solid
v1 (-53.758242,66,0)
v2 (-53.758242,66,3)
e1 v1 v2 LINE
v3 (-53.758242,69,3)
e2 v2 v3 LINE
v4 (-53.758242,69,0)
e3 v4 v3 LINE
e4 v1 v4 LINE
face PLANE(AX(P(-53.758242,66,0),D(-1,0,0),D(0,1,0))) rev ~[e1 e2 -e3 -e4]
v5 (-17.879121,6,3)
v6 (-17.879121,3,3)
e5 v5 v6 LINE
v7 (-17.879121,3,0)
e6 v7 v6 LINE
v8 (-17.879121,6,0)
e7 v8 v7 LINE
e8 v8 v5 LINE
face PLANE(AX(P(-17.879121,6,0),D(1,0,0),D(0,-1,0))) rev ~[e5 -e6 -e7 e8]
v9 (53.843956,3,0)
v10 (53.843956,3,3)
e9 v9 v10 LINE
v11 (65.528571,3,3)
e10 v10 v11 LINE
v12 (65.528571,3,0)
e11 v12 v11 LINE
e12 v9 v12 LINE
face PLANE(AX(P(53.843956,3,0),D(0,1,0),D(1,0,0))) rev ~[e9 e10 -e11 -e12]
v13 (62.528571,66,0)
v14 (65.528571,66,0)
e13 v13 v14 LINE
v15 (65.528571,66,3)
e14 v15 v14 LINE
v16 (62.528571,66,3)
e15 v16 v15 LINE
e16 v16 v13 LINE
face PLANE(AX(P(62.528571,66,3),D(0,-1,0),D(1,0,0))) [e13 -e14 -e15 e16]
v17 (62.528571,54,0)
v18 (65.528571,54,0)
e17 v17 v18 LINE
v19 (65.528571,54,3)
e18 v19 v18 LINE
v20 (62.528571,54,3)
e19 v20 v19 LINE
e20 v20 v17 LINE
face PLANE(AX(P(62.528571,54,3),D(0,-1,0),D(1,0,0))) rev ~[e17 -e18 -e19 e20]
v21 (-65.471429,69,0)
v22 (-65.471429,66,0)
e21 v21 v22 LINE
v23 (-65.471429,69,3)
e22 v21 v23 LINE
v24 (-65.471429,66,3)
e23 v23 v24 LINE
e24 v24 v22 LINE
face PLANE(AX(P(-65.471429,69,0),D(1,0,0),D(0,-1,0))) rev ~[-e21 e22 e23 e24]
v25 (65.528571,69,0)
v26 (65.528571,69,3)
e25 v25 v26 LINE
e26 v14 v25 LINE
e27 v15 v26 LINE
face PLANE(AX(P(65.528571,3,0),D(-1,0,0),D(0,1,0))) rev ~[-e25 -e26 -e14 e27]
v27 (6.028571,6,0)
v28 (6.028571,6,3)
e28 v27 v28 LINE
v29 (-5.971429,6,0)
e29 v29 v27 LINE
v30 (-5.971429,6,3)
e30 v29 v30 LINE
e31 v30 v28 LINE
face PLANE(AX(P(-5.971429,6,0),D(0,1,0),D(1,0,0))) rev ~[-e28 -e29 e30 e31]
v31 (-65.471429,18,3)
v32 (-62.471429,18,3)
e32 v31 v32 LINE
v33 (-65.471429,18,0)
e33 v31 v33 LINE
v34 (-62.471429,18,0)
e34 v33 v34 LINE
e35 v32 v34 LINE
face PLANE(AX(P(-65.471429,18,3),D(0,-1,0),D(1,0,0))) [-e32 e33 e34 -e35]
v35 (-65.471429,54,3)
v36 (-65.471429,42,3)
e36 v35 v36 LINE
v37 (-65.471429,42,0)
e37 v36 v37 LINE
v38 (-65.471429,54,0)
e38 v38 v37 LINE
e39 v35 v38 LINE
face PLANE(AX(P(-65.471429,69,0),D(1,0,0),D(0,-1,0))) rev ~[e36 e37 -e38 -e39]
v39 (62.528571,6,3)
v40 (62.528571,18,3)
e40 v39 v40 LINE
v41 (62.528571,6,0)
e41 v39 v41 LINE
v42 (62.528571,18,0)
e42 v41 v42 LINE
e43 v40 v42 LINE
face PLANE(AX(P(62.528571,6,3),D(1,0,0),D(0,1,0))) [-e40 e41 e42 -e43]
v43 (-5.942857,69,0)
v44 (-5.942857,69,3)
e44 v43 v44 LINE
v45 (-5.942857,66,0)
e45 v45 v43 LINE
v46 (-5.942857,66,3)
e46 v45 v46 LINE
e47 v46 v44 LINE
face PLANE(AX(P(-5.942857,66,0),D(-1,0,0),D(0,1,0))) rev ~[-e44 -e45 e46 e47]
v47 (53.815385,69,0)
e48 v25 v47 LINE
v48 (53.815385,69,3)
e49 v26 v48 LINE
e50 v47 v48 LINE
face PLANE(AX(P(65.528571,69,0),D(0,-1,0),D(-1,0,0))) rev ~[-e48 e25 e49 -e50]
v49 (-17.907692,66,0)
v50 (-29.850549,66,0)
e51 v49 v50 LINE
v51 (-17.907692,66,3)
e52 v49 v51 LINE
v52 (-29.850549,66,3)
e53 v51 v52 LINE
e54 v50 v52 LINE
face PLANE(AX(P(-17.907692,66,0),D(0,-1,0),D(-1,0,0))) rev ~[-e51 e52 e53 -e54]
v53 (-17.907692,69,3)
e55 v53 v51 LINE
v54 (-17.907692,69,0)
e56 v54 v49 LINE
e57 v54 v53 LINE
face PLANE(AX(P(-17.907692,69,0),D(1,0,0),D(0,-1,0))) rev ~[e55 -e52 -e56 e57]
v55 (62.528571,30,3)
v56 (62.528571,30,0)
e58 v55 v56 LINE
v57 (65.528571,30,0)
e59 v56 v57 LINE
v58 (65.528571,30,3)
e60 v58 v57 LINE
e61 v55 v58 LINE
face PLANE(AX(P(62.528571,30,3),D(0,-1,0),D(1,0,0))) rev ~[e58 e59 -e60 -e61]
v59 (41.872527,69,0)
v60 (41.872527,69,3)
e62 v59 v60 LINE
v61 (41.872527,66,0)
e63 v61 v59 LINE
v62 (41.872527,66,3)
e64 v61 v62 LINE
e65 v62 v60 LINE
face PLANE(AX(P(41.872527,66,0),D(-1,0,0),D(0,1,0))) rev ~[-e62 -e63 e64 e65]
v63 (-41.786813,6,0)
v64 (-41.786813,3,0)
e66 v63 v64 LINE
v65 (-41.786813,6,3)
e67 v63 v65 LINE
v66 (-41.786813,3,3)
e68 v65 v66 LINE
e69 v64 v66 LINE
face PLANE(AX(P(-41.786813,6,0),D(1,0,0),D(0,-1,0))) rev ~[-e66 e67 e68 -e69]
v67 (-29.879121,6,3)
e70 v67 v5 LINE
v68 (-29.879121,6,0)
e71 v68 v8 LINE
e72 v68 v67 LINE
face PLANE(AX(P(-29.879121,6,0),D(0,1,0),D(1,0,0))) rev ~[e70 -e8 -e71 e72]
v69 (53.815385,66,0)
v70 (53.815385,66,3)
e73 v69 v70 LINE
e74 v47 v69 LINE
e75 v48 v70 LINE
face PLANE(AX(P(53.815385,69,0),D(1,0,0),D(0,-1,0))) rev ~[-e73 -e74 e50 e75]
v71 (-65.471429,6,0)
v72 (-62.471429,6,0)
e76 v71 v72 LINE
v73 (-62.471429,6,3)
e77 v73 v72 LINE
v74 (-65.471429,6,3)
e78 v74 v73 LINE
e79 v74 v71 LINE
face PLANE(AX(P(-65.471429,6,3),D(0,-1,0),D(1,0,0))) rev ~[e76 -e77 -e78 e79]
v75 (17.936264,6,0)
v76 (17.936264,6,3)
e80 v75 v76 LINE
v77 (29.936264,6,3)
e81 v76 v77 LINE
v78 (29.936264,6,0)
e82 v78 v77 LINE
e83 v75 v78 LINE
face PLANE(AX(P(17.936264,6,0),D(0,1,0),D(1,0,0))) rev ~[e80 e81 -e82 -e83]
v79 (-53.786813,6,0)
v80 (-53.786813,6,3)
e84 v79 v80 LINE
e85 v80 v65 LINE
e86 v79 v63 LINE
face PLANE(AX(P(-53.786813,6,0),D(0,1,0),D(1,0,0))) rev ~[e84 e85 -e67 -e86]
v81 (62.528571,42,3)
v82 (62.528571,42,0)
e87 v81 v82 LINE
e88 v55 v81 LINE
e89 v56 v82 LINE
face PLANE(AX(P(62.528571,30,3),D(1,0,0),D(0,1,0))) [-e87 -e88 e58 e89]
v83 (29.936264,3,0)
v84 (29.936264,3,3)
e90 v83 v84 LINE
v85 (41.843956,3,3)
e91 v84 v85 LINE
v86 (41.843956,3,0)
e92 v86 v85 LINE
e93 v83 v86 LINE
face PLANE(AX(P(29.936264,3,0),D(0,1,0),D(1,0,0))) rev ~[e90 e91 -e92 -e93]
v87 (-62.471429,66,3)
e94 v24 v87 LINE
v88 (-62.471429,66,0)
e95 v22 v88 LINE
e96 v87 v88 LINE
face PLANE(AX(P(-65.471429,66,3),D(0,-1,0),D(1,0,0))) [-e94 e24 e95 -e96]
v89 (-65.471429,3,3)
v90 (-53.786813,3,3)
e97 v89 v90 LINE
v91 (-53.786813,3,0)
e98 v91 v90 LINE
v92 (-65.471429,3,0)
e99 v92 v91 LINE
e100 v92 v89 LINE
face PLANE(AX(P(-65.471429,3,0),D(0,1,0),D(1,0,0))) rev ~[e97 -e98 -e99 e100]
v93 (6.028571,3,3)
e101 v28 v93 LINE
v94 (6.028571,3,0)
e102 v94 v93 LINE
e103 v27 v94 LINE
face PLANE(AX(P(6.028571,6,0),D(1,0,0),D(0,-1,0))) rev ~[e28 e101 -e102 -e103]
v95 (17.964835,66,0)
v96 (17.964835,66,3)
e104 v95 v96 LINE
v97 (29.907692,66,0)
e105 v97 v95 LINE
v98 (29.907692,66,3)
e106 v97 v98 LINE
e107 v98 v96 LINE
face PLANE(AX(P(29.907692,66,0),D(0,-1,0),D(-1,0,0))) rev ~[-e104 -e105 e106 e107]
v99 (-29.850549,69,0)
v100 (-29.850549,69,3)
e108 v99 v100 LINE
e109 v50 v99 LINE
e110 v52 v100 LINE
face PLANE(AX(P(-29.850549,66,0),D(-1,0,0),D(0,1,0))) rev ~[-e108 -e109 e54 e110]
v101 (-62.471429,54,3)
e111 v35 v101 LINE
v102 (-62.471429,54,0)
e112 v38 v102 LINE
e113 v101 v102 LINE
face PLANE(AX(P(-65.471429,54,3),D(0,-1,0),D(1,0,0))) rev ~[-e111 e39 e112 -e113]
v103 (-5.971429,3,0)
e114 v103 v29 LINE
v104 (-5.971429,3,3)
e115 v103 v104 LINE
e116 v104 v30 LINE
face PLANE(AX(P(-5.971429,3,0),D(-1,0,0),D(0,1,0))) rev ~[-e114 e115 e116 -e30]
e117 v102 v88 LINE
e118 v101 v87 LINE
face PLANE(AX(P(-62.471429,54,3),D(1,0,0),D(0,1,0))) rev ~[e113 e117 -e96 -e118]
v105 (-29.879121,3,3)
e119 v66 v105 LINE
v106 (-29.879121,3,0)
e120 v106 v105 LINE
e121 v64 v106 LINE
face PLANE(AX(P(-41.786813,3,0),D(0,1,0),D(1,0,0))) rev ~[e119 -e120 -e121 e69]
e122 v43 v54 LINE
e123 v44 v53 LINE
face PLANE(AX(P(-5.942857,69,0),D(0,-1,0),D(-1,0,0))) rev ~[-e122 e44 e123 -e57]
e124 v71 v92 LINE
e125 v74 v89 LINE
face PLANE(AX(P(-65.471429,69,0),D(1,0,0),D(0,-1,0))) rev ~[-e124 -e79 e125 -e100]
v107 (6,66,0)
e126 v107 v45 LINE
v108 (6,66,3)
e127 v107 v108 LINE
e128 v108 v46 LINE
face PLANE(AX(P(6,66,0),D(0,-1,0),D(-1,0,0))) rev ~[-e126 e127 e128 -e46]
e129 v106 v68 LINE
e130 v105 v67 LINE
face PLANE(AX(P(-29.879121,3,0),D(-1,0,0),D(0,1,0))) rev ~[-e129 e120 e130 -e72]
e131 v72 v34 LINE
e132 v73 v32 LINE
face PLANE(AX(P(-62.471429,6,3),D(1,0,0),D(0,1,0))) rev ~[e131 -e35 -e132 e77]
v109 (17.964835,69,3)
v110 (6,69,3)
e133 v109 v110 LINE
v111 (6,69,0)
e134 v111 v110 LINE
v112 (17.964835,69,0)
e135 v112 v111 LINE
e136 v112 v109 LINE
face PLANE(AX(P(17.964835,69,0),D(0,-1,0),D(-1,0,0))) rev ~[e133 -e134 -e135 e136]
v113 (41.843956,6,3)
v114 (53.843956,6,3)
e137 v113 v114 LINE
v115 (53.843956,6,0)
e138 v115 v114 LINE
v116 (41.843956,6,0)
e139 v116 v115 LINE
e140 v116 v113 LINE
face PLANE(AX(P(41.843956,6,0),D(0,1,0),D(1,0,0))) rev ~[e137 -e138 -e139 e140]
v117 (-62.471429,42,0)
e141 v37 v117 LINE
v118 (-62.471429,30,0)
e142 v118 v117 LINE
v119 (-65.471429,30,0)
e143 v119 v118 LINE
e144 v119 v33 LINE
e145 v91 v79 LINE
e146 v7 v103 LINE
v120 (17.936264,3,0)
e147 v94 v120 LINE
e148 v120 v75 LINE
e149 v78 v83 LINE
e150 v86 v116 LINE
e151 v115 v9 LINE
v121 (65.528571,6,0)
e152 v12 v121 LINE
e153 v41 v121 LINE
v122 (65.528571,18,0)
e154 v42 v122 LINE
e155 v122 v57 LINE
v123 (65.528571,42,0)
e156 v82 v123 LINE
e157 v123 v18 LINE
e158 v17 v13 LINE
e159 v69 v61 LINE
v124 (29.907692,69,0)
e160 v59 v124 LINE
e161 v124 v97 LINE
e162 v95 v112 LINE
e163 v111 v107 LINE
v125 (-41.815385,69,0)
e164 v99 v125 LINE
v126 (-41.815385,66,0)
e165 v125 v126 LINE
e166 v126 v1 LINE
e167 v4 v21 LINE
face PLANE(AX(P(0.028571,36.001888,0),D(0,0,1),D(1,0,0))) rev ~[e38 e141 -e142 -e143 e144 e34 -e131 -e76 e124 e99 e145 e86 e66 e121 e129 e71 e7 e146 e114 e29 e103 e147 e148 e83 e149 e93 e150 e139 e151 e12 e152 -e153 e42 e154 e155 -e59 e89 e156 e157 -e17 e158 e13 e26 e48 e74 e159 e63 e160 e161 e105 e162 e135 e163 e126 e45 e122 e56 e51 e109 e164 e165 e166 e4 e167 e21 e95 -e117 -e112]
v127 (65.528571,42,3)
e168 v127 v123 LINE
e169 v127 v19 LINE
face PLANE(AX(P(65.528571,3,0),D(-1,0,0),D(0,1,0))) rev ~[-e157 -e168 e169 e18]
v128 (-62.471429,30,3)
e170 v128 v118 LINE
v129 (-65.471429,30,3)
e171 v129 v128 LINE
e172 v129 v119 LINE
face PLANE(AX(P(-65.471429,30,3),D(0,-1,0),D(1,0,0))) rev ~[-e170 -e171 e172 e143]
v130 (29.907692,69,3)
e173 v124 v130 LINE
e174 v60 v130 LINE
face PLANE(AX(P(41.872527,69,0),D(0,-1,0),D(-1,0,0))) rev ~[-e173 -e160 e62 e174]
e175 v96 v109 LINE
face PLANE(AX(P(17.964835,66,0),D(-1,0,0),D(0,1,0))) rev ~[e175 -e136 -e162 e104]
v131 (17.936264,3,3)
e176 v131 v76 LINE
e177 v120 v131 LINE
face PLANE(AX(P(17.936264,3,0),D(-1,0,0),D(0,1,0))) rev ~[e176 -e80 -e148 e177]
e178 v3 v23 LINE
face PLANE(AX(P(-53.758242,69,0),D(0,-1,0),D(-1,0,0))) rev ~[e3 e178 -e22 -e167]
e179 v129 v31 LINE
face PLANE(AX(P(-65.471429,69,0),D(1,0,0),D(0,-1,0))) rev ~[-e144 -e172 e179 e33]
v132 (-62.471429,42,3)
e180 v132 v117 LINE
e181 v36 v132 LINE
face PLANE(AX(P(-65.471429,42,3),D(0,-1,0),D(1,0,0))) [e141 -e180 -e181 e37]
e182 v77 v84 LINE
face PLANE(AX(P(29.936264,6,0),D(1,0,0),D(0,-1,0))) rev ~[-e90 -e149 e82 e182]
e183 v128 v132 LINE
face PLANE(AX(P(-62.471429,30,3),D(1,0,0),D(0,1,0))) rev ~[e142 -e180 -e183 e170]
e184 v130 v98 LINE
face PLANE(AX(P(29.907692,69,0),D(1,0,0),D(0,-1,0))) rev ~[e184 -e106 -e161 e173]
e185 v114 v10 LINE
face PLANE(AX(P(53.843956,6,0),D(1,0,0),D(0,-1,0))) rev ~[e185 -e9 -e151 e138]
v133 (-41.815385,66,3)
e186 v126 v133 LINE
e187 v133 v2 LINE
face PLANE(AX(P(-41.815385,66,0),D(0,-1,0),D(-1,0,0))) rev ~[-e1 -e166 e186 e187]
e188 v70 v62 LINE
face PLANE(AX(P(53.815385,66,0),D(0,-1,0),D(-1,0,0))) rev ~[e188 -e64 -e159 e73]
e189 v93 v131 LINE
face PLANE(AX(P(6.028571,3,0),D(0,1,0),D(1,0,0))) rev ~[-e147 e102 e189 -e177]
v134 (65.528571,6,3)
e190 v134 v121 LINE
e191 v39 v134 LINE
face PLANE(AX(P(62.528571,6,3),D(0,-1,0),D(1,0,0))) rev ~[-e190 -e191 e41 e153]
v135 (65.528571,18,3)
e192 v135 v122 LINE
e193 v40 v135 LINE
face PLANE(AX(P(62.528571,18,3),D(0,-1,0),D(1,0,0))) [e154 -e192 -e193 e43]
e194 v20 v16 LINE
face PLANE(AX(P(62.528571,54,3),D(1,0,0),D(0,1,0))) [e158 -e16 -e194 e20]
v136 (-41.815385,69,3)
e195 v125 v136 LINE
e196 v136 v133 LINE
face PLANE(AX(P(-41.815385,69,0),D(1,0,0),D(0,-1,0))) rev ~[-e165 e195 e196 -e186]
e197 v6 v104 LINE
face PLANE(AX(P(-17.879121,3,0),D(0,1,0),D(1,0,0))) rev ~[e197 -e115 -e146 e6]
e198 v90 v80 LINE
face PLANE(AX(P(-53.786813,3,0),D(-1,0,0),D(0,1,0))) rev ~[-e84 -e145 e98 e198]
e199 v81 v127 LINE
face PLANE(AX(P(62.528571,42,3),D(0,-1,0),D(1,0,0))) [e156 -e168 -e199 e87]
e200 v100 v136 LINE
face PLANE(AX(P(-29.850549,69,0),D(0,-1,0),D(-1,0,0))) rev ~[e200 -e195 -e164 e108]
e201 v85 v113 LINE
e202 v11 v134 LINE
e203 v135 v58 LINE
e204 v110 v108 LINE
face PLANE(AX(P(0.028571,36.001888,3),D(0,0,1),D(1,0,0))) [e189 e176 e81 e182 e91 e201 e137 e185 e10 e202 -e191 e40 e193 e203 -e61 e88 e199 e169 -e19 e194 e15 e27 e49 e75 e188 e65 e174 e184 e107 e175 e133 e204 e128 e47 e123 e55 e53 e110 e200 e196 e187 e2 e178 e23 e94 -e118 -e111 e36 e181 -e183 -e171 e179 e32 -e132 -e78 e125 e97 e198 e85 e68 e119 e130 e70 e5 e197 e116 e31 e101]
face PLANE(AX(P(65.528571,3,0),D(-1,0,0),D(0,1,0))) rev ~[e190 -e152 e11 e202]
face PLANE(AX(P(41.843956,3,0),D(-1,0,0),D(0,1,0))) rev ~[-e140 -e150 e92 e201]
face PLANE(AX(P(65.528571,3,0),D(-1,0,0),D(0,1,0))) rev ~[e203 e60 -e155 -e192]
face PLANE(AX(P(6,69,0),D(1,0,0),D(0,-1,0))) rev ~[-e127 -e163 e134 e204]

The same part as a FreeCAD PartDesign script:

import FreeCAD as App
import Part
import Sketcher

V = App.Vector


def add_polygon(sketch, points):
    """Adds a closed chain of lines whose ends are joined by coincident constraints."""
    first, n = sketch.GeometryCount, len(points)
    for a, b in zip(points, points[1:] + points[:1]):
        sketch.addGeometry(Part.LineSegment(App.Vector(*a, 0), App.Vector(*b, 0)), False)
    for i in range(n):
        sketch.addConstraint(Sketcher.Constraint("Coincident", first + i, 2, first + (i + 1) % n, 1))

doc = App.newDocument("Part")
body = doc.addObject("PartDesign::Body", "Body")

sketch1 = body.newObject("Sketcher::SketchObject", "Sketch")
sketch1.AttachmentSupport = (doc.getObject("XY_Plane"), [""])
sketch1.MapMode = "FlatFace"
add_polygon(sketch1, [(-65.5, 3), (-53.8, 3), (-53.8, 6), (-41.8, 6), (-41.8, 3), (-29.9, 3), (-29.9, 6), (-17.9, 6), (-17.9, 3), (-6, 3), (-6, 6), (6, 6), (6, 3), (17.9, 3), (17.9, 6), (29.9, 6), (29.9, 3), (41.8, 3), (41.8, 6), (53.8, 6), (53.8, 3), (65.5, 3), (65.5, 69), (53.8, 69), (53.8, 66), (41.9, 66), (41.9, 69), (29.9, 69), (29.9, 66), (18, 66), (18, 69), (6, 69), (6, 66), (-5.9, 66), (-5.9, 69), (-17.9, 69), (-17.9, 66), (-29.9, 66), (-29.9, 69), (-41.8, 69), (-41.8, 66), (-53.8, 66), (-53.8, 69), (-65.5, 69)])
sketch1.addConstraint([
    Sketcher.Constraint("Horizontal", 0),
    Sketcher.Constraint("Vertical", 1),
    Sketcher.Constraint("Horizontal", 2),
    Sketcher.Constraint("Vertical", 3),
    Sketcher.Constraint("Horizontal", 4),
    Sketcher.Constraint("Vertical", 5),
    Sketcher.Constraint("Horizontal", 6),
    Sketcher.Constraint("Vertical", 7),
    Sketcher.Constraint("Horizontal", 8),
    Sketcher.Constraint("Vertical", 9),
    Sketcher.Constraint("Horizontal", 10),
    Sketcher.Constraint("Vertical", 11),
    Sketcher.Constraint("Horizontal", 12),
    Sketcher.Constraint("Vertical", 13),
    Sketcher.Constraint("Horizontal", 14),
    Sketcher.Constraint("Vertical", 15),
    Sketcher.Constraint("Horizontal", 16),
    Sketcher.Constraint("Vertical", 17),
    Sketcher.Constraint("Horizontal", 18),
    Sketcher.Constraint("Vertical", 19),
    Sketcher.Constraint("Horizontal", 20),
    Sketcher.Constraint("Vertical", 21),
    Sketcher.Constraint("Horizontal", 22),
    Sketcher.Constraint("Vertical", 23),
    Sketcher.Constraint("Horizontal", 24),
    Sketcher.Constraint("Vertical", 25),
    Sketcher.Constraint("Horizontal", 26),
    Sketcher.Constraint("Vertical", 27),
    Sketcher.Constraint("Horizontal", 28),
    Sketcher.Constraint("Vertical", 29),
    Sketcher.Constraint("Horizontal", 30),
    Sketcher.Constraint("Vertical", 31),
    Sketcher.Constraint("Horizontal", 32),
    Sketcher.Constraint("Vertical", 33),
    Sketcher.Constraint("Horizontal", 34),
    Sketcher.Constraint("Vertical", 35),
    Sketcher.Constraint("Horizontal", 36),
    Sketcher.Constraint("Vertical", 37),
    Sketcher.Constraint("Horizontal", 38),
    Sketcher.Constraint("Vertical", 39),
    Sketcher.Constraint("Horizontal", 40),
    Sketcher.Constraint("Vertical", 41),
    Sketcher.Constraint("Horizontal", 42),
    Sketcher.Constraint("Vertical", 43),
    Sketcher.Constraint("Horizontal", 0, 2, 3, 2),
    Sketcher.Constraint("Horizontal", 2, 2, 5, 2),
    Sketcher.Constraint("Horizontal", 4, 2, 7, 2),
    Sketcher.Constraint("Horizontal", 6, 2, 9, 2),
    Sketcher.Constraint("Horizontal", 8, 2, 11, 2),
    Sketcher.Constraint("Horizontal", 10, 2, 13, 2),
    Sketcher.Constraint("Horizontal", 12, 2, 15, 2),
    Sketcher.Constraint("Horizontal", 14, 2, 17, 2),
    Sketcher.Constraint("Horizontal", 16, 2, 19, 2),
    Sketcher.Constraint("Horizontal", 22, 2, 25, 2),
    Sketcher.Constraint("Horizontal", 24, 2, 27, 2),
    Sketcher.Constraint("Horizontal", 26, 2, 29, 2),
    Sketcher.Constraint("Horizontal", 28, 2, 31, 2),
    Sketcher.Constraint("Horizontal", 30, 2, 33, 2),
    Sketcher.Constraint("Horizontal", 32, 2, 35, 2),
    Sketcher.Constraint("Horizontal", 34, 2, 37, 2),
    Sketcher.Constraint("Horizontal", 36, 2, 39, 2),
    Sketcher.Constraint("Horizontal", 38, 2, 41, 2),
    Sketcher.Constraint("Equal", 2, 6),
    Sketcher.Constraint("Equal", 4, 8),
    Sketcher.Constraint("Equal", 6, 10),
    Sketcher.Constraint("Equal", 8, 12),
    Sketcher.Constraint("Equal", 10, 14),
    Sketcher.Constraint("Equal", 12, 16),
    Sketcher.Constraint("Equal", 14, 18),
    Sketcher.Constraint("Equal", 0, 20),
    Sketcher.Constraint("Equal", 24, 28),
    Sketcher.Constraint("Equal", 26, 30),
    Sketcher.Constraint("Equal", 28, 32),
    Sketcher.Constraint("Equal", 30, 34),
    Sketcher.Constraint("Equal", 32, 36),
    Sketcher.Constraint("Equal", 34, 38),
    Sketcher.Constraint("Equal", 36, 40),
    Sketcher.Constraint("Equal", 22, 42),
    Sketcher.Constraint("Equal", 19, 23),
    Sketcher.Constraint("DistanceX", 2, 1, 2, 2, 12.0),
    Sketcher.Constraint("DistanceY", 1, 1, 1, 2, 3.0),
    Sketcher.Constraint("DistanceY", 21, 1, 21, 2, 66.0),
    Sketcher.Constraint("DistanceY", -1, 1, 0, 2, 3.0),
    Sketcher.Constraint("DistanceX", -1, 1, 30, 2, 6.0),
    Sketcher.Constraint("DistanceX", 0, 1, 0, 2, 11.684615),
    Sketcher.Constraint("DistanceX", 4, 1, 4, 2, 11.907692),
    Sketcher.Constraint("DistanceX", 22, 2, 22, 1, 11.713187),
    Sketcher.Constraint("DistanceX", 24, 2, 24, 1, 11.942857),
])
pad1 = body.newObject("PartDesign::Pad", "Pad")
pad1.Profile = sketch1
pad1.Length = 3

sketch2 = body.newObject("Sketcher::SketchObject", "Sketch001")
sketch2.AttachmentSupport = (doc.getObject("XY_Plane"), [""])
sketch2.MapMode = "FlatFace"
sketch2.AttachmentOffset = App.Placement(V(0, 0, 3), App.Rotation())
add_polygon(sketch2, [(-65.5, 66), (-65.5, 54), (-62.5, 54), (-62.5, 66)])
add_polygon(sketch2, [(-65.5, 18), (-65.5, 6), (-62.5, 6), (-62.5, 18)])
add_polygon(sketch2, [(62.5, 42), (62.5, 30), (65.5, 30), (65.5, 42)])
add_polygon(sketch2, [(62.5, 18), (62.5, 6), (65.5, 6), (65.5, 18)])
add_polygon(sketch2, [(-65.5, 42), (-65.5, 30), (-62.5, 30), (-62.5, 42)])
add_polygon(sketch2, [(62.5, 66), (62.5, 54), (65.5, 54), (65.5, 66)])
sketch2.addConstraint([
    Sketcher.Constraint("Vertical", 0),
    Sketcher.Constraint("Horizontal", 1),
    Sketcher.Constraint("Vertical", 2),
    Sketcher.Constraint("Horizontal", 3),
    Sketcher.Constraint("Vertical", 4),
    Sketcher.Constraint("Horizontal", 5),
    Sketcher.Constraint("Vertical", 6),
    Sketcher.Constraint("Horizontal", 7),
    Sketcher.Constraint("Vertical", 8),
    Sketcher.Constraint("Horizontal", 9),
    Sketcher.Constraint("Vertical", 10),
    Sketcher.Constraint("Horizontal", 11),
    Sketcher.Constraint("Vertical", 12),
    Sketcher.Constraint("Horizontal", 13),
    Sketcher.Constraint("Vertical", 14),
    Sketcher.Constraint("Horizontal", 15),
    Sketcher.Constraint("Vertical", 16),
    Sketcher.Constraint("Horizontal", 17),
    Sketcher.Constraint("Vertical", 18),
    Sketcher.Constraint("Horizontal", 19),
    Sketcher.Constraint("Vertical", 20),
    Sketcher.Constraint("Horizontal", 21),
    Sketcher.Constraint("Vertical", 22),
    Sketcher.Constraint("Horizontal", 23),
    Sketcher.Constraint("Horizontal", 5, 2, 12, 2),
    Sketcher.Constraint("Horizontal", 7, 2, 14, 2),
    Sketcher.Constraint("Horizontal", 9, 2, 16, 2),
    Sketcher.Constraint("Horizontal", 11, 2, 18, 2),
    Sketcher.Constraint("Horizontal", 1, 2, 20, 2),
    Sketcher.Constraint("Horizontal", 3, 2, 22, 2),
    Sketcher.Constraint("Vertical", 3, 2, 4, 2),
    Sketcher.Constraint("Vertical", 2, 2, 5, 2),
    Sketcher.Constraint("Vertical", 11, 2, 12, 2),
    Sketcher.Constraint("Vertical", 10, 2, 13, 2),
    Sketcher.Constraint("Vertical", 7, 2, 16, 2),
    Sketcher.Constraint("Vertical", 6, 2, 17, 2),
    Sketcher.Constraint("Vertical", 15, 2, 20, 2),
    Sketcher.Constraint("Vertical", 14, 2, 21, 2),
    Sketcher.Constraint("Equal", 7, 9),
    Sketcher.Constraint("Equal", 2, 4),
    Sketcher.Constraint("Equal", 6, 8),
    Sketcher.Constraint("DistanceX", 1, 1, 1, 2, 3.0),
    Sketcher.Constraint("DistanceY", 0, 2, 0, 1, 12.0),
    Sketcher.Constraint("DistanceY", -1, 1, 0, 2, 54.0),
    Sketcher.Constraint("DistanceY", -1, 1, 4, 2, 6.0),
    Sketcher.Constraint("DistanceY", -1, 1, 8, 2, 30.0),
    Sketcher.Constraint("DistanceX", 6, 2, 8, 2, 125.0),
    Sketcher.Constraint("DistanceX", 0, 2, -1, 1, 65.471429),
])
pocket1 = body.newObject("PartDesign::Pocket", "Pocket")
pocket1.Profile = sketch2
pocket1.Length = 6

doc.recompute()
